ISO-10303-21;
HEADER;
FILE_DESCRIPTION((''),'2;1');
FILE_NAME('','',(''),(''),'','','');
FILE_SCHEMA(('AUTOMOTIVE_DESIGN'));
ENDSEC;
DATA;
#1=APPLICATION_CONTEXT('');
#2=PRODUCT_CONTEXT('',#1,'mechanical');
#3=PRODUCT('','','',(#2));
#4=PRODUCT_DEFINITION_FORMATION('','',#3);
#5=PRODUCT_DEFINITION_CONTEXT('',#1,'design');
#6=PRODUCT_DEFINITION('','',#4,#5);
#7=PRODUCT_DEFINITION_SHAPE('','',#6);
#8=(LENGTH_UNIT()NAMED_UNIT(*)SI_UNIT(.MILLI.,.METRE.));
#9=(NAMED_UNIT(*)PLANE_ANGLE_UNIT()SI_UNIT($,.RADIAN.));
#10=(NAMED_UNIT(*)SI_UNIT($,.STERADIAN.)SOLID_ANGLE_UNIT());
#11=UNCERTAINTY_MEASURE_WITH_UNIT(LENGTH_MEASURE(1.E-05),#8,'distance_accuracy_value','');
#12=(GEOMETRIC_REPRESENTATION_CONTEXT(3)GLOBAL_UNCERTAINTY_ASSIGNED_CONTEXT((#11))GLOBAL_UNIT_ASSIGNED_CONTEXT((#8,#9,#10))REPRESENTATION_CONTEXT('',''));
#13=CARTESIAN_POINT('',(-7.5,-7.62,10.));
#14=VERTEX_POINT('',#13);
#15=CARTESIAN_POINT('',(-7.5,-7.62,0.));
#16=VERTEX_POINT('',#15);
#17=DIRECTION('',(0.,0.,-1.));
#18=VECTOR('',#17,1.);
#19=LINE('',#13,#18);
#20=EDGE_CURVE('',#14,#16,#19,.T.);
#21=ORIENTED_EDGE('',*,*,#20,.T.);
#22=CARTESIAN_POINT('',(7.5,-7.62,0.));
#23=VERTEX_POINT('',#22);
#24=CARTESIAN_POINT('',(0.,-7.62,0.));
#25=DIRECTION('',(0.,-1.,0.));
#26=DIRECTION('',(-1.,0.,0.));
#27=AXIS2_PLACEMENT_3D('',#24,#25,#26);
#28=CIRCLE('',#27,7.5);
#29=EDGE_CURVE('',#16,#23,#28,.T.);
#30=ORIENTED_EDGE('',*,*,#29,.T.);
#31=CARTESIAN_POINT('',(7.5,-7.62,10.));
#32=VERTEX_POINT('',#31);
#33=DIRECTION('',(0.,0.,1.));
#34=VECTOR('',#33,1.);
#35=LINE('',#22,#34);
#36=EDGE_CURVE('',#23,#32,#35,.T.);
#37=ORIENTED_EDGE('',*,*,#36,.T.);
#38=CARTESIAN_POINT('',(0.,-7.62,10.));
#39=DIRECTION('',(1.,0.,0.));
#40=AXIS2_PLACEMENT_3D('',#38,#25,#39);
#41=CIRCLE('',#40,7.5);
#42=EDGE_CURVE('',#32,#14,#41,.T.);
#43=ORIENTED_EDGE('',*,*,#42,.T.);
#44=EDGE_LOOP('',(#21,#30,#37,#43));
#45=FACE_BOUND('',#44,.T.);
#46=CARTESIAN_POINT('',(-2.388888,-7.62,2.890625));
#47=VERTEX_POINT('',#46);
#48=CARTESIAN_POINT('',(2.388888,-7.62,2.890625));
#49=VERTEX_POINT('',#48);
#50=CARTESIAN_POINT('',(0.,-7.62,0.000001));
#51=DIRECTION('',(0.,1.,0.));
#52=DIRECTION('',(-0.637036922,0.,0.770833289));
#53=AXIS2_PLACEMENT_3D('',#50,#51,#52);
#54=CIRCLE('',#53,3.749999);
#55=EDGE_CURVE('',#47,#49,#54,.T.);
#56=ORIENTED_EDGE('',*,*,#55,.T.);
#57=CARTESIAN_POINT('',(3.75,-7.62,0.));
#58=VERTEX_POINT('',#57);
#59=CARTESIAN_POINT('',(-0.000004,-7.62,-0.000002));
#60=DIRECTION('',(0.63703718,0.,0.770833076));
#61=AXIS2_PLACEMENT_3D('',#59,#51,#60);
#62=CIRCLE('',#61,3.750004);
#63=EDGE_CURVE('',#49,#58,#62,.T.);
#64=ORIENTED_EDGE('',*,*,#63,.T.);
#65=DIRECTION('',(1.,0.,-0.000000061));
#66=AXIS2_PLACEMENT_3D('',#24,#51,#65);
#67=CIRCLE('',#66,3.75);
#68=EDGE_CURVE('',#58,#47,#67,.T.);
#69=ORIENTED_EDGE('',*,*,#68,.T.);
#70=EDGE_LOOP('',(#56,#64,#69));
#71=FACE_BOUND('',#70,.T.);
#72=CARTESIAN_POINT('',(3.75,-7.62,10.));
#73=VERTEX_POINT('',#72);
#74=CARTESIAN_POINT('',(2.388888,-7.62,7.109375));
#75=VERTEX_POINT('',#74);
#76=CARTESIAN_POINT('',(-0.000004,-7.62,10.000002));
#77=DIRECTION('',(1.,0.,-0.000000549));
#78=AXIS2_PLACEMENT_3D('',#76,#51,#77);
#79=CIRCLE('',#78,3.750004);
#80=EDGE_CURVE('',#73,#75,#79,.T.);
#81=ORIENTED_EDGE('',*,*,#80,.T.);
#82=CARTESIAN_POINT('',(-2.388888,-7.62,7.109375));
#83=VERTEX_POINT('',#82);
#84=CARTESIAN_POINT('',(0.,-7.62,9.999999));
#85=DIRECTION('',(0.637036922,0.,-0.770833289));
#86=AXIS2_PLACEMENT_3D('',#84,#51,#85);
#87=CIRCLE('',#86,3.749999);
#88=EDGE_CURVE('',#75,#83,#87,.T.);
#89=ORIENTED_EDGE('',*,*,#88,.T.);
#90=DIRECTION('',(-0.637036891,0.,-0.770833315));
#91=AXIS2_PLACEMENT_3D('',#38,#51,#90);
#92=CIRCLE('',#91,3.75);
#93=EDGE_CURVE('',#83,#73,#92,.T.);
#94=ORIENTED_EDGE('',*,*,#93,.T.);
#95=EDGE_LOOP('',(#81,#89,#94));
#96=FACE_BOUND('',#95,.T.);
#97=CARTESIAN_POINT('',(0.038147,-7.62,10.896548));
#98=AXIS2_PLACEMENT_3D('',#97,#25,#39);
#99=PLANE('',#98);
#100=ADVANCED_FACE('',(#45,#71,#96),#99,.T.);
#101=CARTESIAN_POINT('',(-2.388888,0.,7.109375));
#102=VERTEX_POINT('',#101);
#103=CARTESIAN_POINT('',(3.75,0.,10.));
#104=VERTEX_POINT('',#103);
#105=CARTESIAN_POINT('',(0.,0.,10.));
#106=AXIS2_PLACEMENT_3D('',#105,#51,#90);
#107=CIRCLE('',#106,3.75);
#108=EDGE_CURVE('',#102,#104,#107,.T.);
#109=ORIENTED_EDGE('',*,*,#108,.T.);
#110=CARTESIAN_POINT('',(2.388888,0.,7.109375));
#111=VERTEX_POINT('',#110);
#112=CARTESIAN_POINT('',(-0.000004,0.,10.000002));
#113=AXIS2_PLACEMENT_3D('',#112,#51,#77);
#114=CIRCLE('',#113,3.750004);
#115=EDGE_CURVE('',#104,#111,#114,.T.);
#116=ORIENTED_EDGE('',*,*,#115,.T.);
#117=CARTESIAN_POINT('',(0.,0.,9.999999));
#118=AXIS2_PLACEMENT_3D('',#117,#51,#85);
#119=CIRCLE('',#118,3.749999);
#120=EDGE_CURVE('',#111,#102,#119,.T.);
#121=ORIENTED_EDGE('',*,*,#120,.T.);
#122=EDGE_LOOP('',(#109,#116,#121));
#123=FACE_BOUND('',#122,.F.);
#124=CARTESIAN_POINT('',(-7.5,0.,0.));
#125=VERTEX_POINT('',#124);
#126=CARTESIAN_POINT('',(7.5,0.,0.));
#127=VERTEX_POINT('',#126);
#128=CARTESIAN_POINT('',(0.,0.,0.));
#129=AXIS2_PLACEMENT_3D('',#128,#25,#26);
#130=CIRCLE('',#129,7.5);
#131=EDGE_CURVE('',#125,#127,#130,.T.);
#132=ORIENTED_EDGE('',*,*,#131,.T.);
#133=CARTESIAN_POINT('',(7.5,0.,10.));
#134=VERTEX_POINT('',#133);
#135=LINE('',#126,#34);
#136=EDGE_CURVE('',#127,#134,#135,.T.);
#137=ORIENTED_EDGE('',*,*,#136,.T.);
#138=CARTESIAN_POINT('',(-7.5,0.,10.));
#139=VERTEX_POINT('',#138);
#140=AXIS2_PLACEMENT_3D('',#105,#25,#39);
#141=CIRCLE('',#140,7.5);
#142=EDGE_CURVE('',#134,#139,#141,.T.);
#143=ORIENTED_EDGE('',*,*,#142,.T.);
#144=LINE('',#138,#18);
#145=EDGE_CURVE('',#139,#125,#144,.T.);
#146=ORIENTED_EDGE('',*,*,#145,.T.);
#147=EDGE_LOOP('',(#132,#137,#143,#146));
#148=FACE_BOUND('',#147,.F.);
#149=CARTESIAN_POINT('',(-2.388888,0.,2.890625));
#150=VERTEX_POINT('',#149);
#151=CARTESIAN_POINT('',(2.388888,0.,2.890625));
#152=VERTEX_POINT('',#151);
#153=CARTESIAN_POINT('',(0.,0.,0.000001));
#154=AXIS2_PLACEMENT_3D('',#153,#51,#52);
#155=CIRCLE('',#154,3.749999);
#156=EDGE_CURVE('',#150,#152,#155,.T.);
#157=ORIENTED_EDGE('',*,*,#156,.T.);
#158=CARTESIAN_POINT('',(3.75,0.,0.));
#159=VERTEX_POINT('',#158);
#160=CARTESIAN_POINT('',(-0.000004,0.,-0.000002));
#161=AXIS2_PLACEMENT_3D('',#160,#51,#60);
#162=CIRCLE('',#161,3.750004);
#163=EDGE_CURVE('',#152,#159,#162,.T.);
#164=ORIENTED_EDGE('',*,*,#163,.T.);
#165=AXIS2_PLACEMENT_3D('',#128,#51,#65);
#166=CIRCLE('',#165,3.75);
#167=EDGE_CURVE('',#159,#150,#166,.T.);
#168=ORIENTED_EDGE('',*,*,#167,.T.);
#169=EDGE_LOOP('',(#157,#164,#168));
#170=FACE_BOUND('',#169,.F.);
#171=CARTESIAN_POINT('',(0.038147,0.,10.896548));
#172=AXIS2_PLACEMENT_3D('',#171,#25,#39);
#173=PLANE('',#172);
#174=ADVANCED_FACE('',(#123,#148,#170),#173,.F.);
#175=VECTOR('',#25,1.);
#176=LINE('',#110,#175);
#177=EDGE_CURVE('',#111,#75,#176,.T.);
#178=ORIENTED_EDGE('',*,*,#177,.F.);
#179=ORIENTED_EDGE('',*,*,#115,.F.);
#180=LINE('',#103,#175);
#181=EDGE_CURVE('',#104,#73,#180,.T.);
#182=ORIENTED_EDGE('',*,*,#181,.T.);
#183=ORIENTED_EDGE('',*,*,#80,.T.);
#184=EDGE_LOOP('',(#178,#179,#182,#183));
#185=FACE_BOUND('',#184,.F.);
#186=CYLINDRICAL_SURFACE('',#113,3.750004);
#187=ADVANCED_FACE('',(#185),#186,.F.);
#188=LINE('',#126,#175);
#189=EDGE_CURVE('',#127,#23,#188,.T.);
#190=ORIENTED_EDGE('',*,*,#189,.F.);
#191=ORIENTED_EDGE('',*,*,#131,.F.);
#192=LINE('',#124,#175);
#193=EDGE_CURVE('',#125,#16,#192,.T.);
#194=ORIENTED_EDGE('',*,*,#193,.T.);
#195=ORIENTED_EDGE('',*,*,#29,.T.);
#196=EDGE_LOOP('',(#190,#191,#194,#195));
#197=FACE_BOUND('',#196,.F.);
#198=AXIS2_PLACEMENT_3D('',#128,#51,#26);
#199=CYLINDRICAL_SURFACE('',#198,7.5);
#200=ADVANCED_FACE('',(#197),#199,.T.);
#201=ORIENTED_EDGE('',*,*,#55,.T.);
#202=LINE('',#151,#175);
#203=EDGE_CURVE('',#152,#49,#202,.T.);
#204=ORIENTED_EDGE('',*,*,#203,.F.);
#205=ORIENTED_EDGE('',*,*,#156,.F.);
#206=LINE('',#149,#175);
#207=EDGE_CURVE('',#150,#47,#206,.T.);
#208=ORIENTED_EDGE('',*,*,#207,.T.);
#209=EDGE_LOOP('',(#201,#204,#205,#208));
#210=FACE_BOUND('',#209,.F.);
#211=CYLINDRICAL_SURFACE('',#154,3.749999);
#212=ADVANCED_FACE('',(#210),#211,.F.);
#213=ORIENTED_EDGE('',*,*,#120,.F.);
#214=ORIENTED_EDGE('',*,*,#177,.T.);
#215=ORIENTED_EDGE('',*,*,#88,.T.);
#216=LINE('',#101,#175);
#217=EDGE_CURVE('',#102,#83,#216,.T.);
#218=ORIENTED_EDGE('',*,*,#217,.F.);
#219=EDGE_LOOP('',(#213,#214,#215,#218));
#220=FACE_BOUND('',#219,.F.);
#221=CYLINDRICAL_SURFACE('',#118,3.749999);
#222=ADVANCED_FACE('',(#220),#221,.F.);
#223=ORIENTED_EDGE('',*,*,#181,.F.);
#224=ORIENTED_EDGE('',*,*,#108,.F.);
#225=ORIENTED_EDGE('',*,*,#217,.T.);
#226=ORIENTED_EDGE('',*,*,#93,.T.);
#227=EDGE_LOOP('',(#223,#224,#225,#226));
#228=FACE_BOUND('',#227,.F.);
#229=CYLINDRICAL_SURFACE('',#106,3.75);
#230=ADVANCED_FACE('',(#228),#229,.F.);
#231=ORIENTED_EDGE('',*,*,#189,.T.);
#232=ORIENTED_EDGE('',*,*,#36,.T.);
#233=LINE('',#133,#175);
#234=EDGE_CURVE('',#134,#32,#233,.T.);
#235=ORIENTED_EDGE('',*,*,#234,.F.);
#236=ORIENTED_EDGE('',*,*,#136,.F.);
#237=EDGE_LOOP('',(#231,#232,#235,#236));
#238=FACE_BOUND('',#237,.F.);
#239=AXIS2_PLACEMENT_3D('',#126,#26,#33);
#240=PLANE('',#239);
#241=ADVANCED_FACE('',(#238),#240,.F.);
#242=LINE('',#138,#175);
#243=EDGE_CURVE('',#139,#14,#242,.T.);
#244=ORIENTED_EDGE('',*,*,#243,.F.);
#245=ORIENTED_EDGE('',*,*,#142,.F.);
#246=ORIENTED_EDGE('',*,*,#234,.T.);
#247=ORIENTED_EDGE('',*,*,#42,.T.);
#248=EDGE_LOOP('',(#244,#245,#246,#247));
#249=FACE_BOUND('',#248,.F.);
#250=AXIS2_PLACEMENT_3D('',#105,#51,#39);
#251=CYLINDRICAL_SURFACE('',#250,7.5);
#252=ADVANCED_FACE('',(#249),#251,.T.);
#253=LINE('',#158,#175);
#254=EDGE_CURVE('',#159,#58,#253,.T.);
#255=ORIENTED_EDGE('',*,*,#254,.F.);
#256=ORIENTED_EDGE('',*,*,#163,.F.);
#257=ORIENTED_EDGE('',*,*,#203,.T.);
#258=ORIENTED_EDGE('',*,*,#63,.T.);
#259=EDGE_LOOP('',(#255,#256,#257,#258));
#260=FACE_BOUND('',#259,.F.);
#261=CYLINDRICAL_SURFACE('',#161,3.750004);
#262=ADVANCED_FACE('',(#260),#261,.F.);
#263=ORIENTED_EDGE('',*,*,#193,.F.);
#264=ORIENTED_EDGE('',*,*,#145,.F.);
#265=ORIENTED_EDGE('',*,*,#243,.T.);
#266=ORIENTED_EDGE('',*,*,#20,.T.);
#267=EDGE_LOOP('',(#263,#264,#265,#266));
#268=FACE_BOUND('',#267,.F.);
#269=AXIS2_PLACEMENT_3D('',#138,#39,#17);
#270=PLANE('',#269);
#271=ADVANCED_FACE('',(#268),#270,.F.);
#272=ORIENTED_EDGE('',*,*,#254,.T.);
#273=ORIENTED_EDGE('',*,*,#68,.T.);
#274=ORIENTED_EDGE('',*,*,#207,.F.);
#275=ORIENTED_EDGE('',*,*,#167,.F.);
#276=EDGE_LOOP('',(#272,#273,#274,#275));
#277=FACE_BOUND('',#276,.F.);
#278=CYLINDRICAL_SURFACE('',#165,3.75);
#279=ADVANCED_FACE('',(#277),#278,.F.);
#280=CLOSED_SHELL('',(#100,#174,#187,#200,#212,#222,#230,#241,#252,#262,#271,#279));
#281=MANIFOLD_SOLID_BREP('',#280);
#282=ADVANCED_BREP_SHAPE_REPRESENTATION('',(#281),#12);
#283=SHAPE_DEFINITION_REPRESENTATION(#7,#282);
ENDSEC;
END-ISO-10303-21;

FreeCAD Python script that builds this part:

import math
import FreeCAD as App
import Part
import Sketcher
from FreeCAD import Vector
Q = App.Units.Quantity

doc = App.newDocument("Part")
params = doc.addObject("Spreadsheet::Sheet", "Params")
for row, (alias, value) in enumerate([
    ("sketch1_radius", "7.5 mm"),
    ("sketch1_height", "10 mm"),
    ("sketch1_radius2", "3.749999 mm"),
    ("pad1_length", "7.62 mm"),
], start=1):
    params.set(f"A{row}", alias)
    params.set(f"B{row}", "=" + value)
    params.setAlias(f"B{row}", alias)

body = doc.addObject("PartDesign::Body", "Body")

# Sketch on XZ plane
sketch1 = body.newObject("Sketcher::SketchObject", "Sketch")
sketch1.AttachmentSupport = (doc.getObject("XZ_Plane"), [""])
sketch1.MapMode = "FlatFace"
sketch1.addGeometry(Part.ArcOfCircle(Part.Circle(Vector(0, 10, 0), Vector(0, 0, 1), 7.5), math.radians(0), math.radians(180)), False)
sketch1.addGeometry(Part.LineSegment(Vector(-7.5, 10, 0), Vector(-7.5, 0, 0)), False)
sketch1.addGeometry(Part.ArcOfCircle(Part.Circle(Vector(0, 0, 0), Vector(0, 0, 1), 7.5), math.radians(180), math.radians(360)), False)
sketch1.addGeometry(Part.LineSegment(Vector(7.5, 0, 0), Vector(7.5, 10, 0)), False)
sketch1.addGeometry(Part.ArcOfCircle(Part.Circle(Vector(0, 0.000001, 0), Vector(0, 0, 1), 3.749999), math.radians(50.428777), math.radians(129.571223)), False)
sketch1.addGeometry(Part.ArcOfCircle(Part.Circle(Vector(-0.000004, -0.000002, 0), Vector(0, 0, 1), 3.750004), math.radians(0.000031), math.radians(50.428757)), False)
sketch1.addGeometry(Part.ArcOfCircle(Part.Circle(Vector(0, 0, 0), Vector(0, 0, 1), 3.75), math.radians(129.571221), math.radians(359.999997)), False)
sketch1.addGeometry(Part.ArcOfCircle(Part.Circle(Vector(0, 10, 0), Vector(0, 0, 1), 3.75), math.radians(0.000003), math.radians(230.428779)), False)
sketch1.addGeometry(Part.ArcOfCircle(Part.Circle(Vector(-0.000004, 10.000002, 0), Vector(0, 0, 1), 3.750004), math.radians(-50.428757), math.radians(-0.000031)), False)
sketch1.addGeometry(Part.ArcOfCircle(Part.Circle(Vector(0, 9.999999, 0), Vector(0, 0, 1), 3.749999), math.radians(-129.571223), math.radians(-50.428777)), False)
sketch1.addConstraint(Sketcher.Constraint("Tangent", 0, 2, 1, 1))
sketch1.addConstraint(Sketcher.Constraint("Tangent", 1, 2, 2, 1))
sketch1.addConstraint(Sketcher.Constraint("Tangent", 2, 2, 3, 1))
sketch1.addConstraint(Sketcher.Constraint("Tangent", 3, 2, 0, 1))
sketch1.addConstraint(Sketcher.Constraint("Tangent", 4, 1, 5, 2))
sketch1.addConstraint(Sketcher.Constraint("Tangent", 5, 1, 6, 2))
sketch1.addConstraint(Sketcher.Constraint("Tangent", 6, 1, 4, 2))
sketch1.addConstraint(Sketcher.Constraint("Tangent", 7, 1, 8, 2))
sketch1.addConstraint(Sketcher.Constraint("Tangent", 8, 1, 9, 2))
sketch1.addConstraint(Sketcher.Constraint("Tangent", 9, 1, 7, 2))
sketch1.addConstraint(Sketcher.Constraint("Vertical", 1))
sketch1.addConstraint(Sketcher.Constraint("Vertical", 3))
sketch1.addConstraint(Sketcher.Constraint("Coincident", 2, 3, -1, 1))
sketch1.addConstraint(Sketcher.Constraint("Coincident", 4, 3, -1, 1))
sketch1.addConstraint(Sketcher.Constraint("Coincident", 7, 3, 0, 3))
sketch1.addConstraint(Sketcher.Constraint("Equal", 6, 7))
sketch1.addConstraint(Sketcher.Constraint("PointOnObject", 5, 1, -1))
sketch1.addConstraint(Sketcher.Constraint("Horizontal", 4, 1, 6, 1))
sketch1.addConstraint(Sketcher.Constraint("Horizontal", 3, 2, 7, 1))
sketch1.addConstraint(Sketcher.Constraint("Horizontal", 8, 1, 9, 1))
sketch1.addConstraint(Sketcher.Constraint("Vertical", 4, 1, 8, 1))
sketch1.addConstraint(Sketcher.Constraint("Radius", 0, Q("7.5 mm")))
sketch1.addConstraint(Sketcher.Constraint("DistanceY", 1, 2, 1, 1, Q("10 mm")))
sketch1.addConstraint(Sketcher.Constraint("Radius", 4, Q("3.749999 mm")))
sketch1.addConstraint(Sketcher.Constraint("DistanceX", -1, 1, 4, 1, Q("2.388888 mm")))
sketch1.setExpression("Constraints[21]", "Params.sketch1_radius")
sketch1.setExpression("Constraints[22]", "Params.sketch1_height")
sketch1.setExpression("Constraints[23]", "Params.sketch1_radius2")
pad1 = body.newObject("PartDesign::Pad", "Pad")
pad1.Profile = sketch1
pad1.setExpression("Length", "Params.pad1_length")

doc.recompute()
